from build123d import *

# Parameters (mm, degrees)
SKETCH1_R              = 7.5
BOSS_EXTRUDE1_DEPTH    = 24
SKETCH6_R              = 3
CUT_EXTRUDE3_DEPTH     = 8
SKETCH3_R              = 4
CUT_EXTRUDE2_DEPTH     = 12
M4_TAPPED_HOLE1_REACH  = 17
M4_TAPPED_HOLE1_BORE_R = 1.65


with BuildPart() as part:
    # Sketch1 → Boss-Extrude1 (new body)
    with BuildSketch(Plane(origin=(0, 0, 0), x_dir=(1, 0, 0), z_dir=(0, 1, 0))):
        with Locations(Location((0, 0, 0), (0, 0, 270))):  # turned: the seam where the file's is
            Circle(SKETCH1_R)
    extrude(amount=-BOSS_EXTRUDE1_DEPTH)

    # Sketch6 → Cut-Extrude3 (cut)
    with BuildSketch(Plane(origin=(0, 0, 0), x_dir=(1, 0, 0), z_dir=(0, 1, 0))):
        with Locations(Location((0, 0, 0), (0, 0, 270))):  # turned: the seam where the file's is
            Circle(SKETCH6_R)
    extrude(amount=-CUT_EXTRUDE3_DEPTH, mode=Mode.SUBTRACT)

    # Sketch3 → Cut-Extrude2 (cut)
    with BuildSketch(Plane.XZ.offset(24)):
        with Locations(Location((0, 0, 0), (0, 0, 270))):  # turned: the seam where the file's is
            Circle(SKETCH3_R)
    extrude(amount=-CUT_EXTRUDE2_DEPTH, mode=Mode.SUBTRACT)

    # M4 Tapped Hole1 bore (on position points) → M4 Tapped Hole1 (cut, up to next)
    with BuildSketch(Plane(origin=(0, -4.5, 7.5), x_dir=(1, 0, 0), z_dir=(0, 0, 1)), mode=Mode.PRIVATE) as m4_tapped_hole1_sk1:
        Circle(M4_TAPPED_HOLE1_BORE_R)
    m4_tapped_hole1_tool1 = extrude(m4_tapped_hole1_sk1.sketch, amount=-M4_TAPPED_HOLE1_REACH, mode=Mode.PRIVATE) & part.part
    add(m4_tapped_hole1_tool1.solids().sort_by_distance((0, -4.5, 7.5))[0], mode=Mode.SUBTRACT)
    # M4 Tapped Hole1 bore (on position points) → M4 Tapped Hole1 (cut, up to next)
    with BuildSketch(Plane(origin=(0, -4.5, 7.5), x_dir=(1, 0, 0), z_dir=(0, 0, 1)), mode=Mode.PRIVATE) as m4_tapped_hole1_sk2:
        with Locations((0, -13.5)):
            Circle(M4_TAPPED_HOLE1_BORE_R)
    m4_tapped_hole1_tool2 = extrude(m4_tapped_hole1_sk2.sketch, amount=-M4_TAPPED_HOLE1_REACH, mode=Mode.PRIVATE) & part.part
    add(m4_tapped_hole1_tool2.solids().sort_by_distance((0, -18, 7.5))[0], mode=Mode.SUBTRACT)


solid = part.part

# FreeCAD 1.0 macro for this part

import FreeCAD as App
import Part
import Sketcher
from FreeCAD import Vector

doc = App.newDocument("Part")
body = doc.addObject("PartDesign::Body", "Body")

# Sketch on XZ plane
sketch1 = body.newObject("Sketcher::SketchObject", "Sketch")
sketch1.AttachmentSupport = (doc.getObject("XZ_Plane"), [""])
sketch1.MapMode = "FlatFace"
sketch1.addGeometry(Part.Circle(Vector(0, 0, 0), Vector(0, 0, 1), 8), False)
sketch1.addConstraint([
    Sketcher.Constraint("Coincident", 0, 3, -1, 1),
    Sketcher.Constraint("Diameter", 0, 15.0),
])
pad1 = body.newObject("PartDesign::Pad", "Pad")
pad1.Profile = sketch1
pad1.Length = 24

# Sketch on XZ plane
sketch2 = body.newObject("Sketcher::SketchObject", "Sketch001")
sketch2.AttachmentSupport = (doc.getObject("XZ_Plane"), [""])
sketch2.MapMode = "FlatFace"
sketch2.addGeometry(Part.Circle(Vector(0, 0, 0), Vector(0, 0, 1), 3), False)
sketch2.addConstraint([
    Sketcher.Constraint("Coincident", 0, 3, -1, 1),
    Sketcher.Constraint("Diameter", 0, 6.0),
])
pocket1 = body.newObject("PartDesign::Pocket", "Pocket")
pocket1.Profile = sketch2
pocket1.Length = 8
pocket1.Reversed = True

# Sketch on XZ plane
sketch3 = body.newObject("Sketcher::SketchObject", "Sketch002")
sketch3.AttachmentSupport = (doc.getObject("XZ_Plane"), [""])
sketch3.MapMode = "FlatFace"
sketch3.AttachmentOffset = App.Placement(Vector(0, 0, 24), App.Rotation())
sketch3.addGeometry(Part.Circle(Vector(0, 0, 0), Vector(0, 0, 1), 4), False)
sketch3.addConstraint([
    Sketcher.Constraint("Coincident", 0, 3, -1, 1),
    Sketcher.Constraint("Diameter", 0, 8.0),
])
pocket2 = body.newObject("PartDesign::Pocket", "Pocket001")
pocket2.Profile = sketch3
pocket2.Length = 12

# Sketch on XY plane
sketch4 = body.newObject("Sketcher::SketchObject", "Sketch003")
sketch4.AttachmentSupport = (doc.getObject("XY_Plane"), [""])
sketch4.MapMode = "FlatFace"
sketch4.AttachmentOffset = App.Placement(Vector(0, 0, 7.5), App.Rotation())
sketch4.addGeometry(Part.Circle(Vector(0, -4.5, 0), Vector(0, 0, 1), 1.6), False)
sketch4.addConstraint([
    Sketcher.Constraint("PointOnObject", 0, 3, -2),
    Sketcher.Constraint("Diameter", 0, 3.3),
    Sketcher.Constraint("DistanceY", 0, 3, -1, 1, 4.5),
])
pocket3 = body.newObject("PartDesign::Pocket", "Pocket002")
pocket3.Profile = sketch4
pocket3.Type = "UpToFirst"

# Sketch on XY plane
sketch5 = body.newObject("Sketcher::SketchObject", "Sketch004")
sketch5.AttachmentSupport = (doc.getObject("XY_Plane"), [""])
sketch5.MapMode = "FlatFace"
sketch5.AttachmentOffset = App.Placement(Vector(0, 0, 7.5), App.Rotation())
sketch5.addGeometry(Part.Circle(Vector(0, -18, 0), Vector(0, 0, 1), 1.6), False)
sketch5.addConstraint([
    Sketcher.Constraint("PointOnObject", 0, 3, -2),
    Sketcher.Constraint("Diameter", 0, 3.3),
    Sketcher.Constraint("DistanceY", 0, 3, -1, 1, 18.0),
])
pocket4 = body.newObject("PartDesign::Pocket", "Pocket003")
pocket4.Profile = sketch5
pocket4.Type = "UpToFirst"

doc.recompute()
